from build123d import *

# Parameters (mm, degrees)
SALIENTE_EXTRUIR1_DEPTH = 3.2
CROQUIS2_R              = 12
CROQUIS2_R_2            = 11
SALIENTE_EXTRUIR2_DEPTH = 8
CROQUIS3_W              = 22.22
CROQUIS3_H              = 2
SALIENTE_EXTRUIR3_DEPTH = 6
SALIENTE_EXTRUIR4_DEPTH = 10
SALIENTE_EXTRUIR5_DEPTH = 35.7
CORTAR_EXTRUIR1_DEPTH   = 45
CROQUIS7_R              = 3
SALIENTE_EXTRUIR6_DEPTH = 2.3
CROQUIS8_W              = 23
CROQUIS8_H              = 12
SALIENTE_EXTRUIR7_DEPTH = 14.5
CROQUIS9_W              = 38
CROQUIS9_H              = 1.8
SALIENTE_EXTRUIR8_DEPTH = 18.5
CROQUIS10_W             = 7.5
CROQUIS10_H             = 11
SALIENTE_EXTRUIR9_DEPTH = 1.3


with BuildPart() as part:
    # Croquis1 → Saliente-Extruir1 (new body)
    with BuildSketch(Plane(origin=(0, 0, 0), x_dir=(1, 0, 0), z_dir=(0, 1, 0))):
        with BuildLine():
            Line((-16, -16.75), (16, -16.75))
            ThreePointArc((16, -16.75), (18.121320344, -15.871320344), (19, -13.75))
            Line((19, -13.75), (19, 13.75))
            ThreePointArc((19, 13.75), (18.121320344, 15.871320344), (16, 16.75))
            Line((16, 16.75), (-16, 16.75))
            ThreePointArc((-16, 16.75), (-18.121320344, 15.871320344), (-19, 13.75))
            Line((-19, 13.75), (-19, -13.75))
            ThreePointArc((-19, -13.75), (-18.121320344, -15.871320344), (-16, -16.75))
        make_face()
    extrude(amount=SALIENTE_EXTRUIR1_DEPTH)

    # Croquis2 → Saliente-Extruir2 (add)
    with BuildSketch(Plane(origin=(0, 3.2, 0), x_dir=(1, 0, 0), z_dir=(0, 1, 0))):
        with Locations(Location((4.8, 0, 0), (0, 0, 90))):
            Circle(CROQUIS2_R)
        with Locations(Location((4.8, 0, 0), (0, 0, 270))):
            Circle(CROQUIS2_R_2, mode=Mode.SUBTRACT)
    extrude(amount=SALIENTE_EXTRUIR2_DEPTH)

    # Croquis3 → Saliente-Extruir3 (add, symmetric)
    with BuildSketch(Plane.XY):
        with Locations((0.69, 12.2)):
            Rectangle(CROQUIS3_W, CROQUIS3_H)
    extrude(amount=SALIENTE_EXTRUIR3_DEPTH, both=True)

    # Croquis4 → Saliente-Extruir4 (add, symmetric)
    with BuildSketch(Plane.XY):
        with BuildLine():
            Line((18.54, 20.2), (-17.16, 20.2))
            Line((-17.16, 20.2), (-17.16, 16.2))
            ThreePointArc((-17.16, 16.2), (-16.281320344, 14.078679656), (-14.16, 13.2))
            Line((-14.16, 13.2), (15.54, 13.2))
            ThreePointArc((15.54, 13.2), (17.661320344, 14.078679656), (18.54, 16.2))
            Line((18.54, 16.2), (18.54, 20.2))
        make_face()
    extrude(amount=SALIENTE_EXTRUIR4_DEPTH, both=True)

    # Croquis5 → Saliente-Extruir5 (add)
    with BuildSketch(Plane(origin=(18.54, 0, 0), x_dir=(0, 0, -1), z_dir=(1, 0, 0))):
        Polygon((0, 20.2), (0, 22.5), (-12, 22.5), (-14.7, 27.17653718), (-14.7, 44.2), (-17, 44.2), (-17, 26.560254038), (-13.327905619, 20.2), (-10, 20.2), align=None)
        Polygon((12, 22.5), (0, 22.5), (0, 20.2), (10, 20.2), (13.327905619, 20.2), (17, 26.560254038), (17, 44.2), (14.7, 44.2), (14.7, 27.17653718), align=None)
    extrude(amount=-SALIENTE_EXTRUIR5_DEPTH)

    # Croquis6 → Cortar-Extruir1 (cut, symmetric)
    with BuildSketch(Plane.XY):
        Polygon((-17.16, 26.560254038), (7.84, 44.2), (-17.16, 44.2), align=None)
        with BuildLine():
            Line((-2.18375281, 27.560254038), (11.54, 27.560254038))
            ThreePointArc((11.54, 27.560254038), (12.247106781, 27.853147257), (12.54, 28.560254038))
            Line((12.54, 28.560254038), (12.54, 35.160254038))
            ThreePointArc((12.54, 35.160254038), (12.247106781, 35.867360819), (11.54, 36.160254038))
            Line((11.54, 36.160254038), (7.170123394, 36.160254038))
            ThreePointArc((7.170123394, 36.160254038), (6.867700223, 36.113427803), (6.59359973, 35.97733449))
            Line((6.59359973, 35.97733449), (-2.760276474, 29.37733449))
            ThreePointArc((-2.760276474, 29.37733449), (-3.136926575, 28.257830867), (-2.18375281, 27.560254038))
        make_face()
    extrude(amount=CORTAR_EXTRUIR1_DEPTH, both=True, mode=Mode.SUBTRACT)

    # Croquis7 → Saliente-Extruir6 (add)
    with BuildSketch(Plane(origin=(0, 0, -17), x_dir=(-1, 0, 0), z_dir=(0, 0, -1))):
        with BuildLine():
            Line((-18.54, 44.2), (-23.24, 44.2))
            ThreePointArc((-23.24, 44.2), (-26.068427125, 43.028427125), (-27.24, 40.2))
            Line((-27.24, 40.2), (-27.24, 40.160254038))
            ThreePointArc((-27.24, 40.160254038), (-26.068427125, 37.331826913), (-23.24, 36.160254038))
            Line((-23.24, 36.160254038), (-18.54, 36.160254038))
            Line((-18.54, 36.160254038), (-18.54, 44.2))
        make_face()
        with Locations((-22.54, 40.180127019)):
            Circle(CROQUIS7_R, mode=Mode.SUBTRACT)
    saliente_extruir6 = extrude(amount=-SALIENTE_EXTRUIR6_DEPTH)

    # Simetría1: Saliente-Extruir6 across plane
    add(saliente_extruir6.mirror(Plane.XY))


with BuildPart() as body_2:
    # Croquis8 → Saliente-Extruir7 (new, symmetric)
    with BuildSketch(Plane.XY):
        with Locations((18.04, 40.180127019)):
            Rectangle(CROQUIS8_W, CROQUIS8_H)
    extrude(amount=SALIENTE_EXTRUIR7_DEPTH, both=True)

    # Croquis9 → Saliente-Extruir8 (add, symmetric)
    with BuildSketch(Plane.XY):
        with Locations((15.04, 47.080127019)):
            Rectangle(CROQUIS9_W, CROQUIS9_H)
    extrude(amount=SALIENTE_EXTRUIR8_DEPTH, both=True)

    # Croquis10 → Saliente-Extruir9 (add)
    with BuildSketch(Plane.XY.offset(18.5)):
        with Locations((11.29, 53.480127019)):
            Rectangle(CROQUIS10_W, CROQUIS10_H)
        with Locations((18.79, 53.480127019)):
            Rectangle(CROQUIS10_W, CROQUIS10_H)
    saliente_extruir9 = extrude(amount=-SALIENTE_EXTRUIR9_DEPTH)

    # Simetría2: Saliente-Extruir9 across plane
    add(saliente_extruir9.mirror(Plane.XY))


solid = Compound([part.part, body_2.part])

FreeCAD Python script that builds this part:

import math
import FreeCAD as App
import Part
import Sketcher

V = App.Vector
Q = App.Units.Quantity


def add_polygon(sketch, points):
    """Adds a closed chain of lines whose ends are joined by coincident constraints."""
    first, n = sketch.GeometryCount, len(points)
    for a, b in zip(points, points[1:] + points[:1]):
        sketch.addGeometry(Part.LineSegment(App.Vector(*a, 0), App.Vector(*b, 0)), False)
    for i in range(n):
        sketch.addConstraint(Sketcher.Constraint("Coincident", first + i, 2, first + (i + 1) % n, 1))

doc = App.newDocument("Part")
body = doc.addObject("PartDesign::Body", "Body")

sketch1 = doc.addObject("Sketcher::SketchObject", "Sketch")
body.addObject(sketch1)
sketch1.AttachmentSupport = (doc.XZ_Plane, [""])
sketch1.MapMode = "FlatFace"
sketch1.addGeometry([
    Part.LineSegment(V(-16, 16.8, 0), V(16, 16.8, 0)),
    Part.ArcOfCircle(Part.Circle(V(16, 13.8, 0), V(0, 0, 1), 3), math.radians(0), math.radians(90)),
    Part.LineSegment(V(19, 13.8, 0), V(19, -13.8, 0)),
    Part.ArcOfCircle(Part.Circle(V(16, -13.8, 0), V(0, 0, 1), 3), math.radians(-90), math.radians(0)),
    Part.LineSegment(V(16, -16.8, 0), V(-16, -16.8, 0)),
    Part.ArcOfCircle(Part.Circle(V(-16, -13.8, 0), V(0, 0, 1), 3), math.radians(180), math.radians(270)),
    Part.LineSegment(V(-19, -13.8, 0), V(-19, 13.8, 0)),
    Part.ArcOfCircle(Part.Circle(V(-16, 13.8, 0), V(0, 0, 1), 3), math.radians(90), math.radians(180)),
], False)
sketch1.addConstraint([
    Sketcher.Constraint("Tangent", 0, 2, 1, 2),
    Sketcher.Constraint("Tangent", 1, 1, 2, 1),
    Sketcher.Constraint("Tangent", 2, 2, 3, 2),
    Sketcher.Constraint("Tangent", 3, 1, 4, 1),
    Sketcher.Constraint("Tangent", 4, 2, 5, 2),
    Sketcher.Constraint("Tangent", 5, 1, 6, 1),
    Sketcher.Constraint("Tangent", 6, 2, 7, 2),
    Sketcher.Constraint("Tangent", 7, 1, 0, 1),
    Sketcher.Constraint("Horizontal", 0),
    Sketcher.Constraint("Vertical", 2),
    Sketcher.Constraint("Horizontal", 4),
    Sketcher.Constraint("Vertical", 6),
    Sketcher.Constraint("Equal", 1, 3),
    Sketcher.Constraint("Equal", 3, 5),
    Sketcher.Constraint("Equal", 5, 7),
    Sketcher.Constraint("Symmetric", 1, 3, 5, 3, -1, 1),
    Sketcher.Constraint("Radius", 1, 3.0),
    Sketcher.Constraint("DistanceX", 0, 1, 0, 2, 32.0),
    Sketcher.Constraint("DistanceY", 2, 2, 2, 1, 27.5),
])
pad1 = doc.addObject("PartDesign::Pad", "Pad")
body.addObject(pad1)
pad1.Profile = sketch1
pad1.Length = 3.2
pad1.Reversed = True

sketch2 = doc.addObject("Sketcher::SketchObject", "Sketch001")
body.addObject(sketch2)
sketch2.AttachmentSupport = (doc.XZ_Plane, [""])
sketch2.MapMode = "FlatFace"
sketch2.AttachmentOffset = App.Placement(V(0, 0, -3.2), App.Rotation())
sketch2.addGeometry([
    Part.Circle(V(5, 0, 0), V(0, 0, 1), 12),
    Part.Circle(V(5, 0, 0), V(0, 0, 1), 11),
], False)
sketch2.addConstraint([
    Sketcher.Constraint("Coincident", 1, 3, 0, 3),
    Sketcher.Constraint("PointOnObject", 0, 3, -1),
    Sketcher.Constraint("Diameter", 0, 24.0),
    Sketcher.Constraint("Diameter", 1, 22.0),
    Sketcher.Constraint("DistanceX", -1, 1, 0, 3, 4.8),
])
pad2 = doc.addObject("PartDesign::Pad", "Pad001")
body.addObject(pad2)
pad2.Profile = sketch2
pad2.Length = 8
pad2.Reversed = True

sketch3 = doc.addObject("Sketcher::SketchObject", "Sketch002")
body.addObject(sketch3)
sketch3.AttachmentSupport = (doc.XY_Plane, [""])
sketch3.MapMode = "FlatFace"
add_polygon(sketch3, [(-10.4, 13.2), (-10.4, 11.2), (11.8, 11.2), (11.8, 13.2)])
sketch3.addConstraint([
    Sketcher.Constraint("Vertical", 0),
    Sketcher.Constraint("Horizontal", 1),
    Sketcher.Constraint("Vertical", 2),
    Sketcher.Constraint("Horizontal", 3),
    Sketcher.Constraint("DistanceY", 0, 2, 0, 1, 2.0),
    Sketcher.Constraint("DistanceX", 1, 1, 1, 2, 22.22),
    Sketcher.Constraint("DistanceY", -1, 1, 0, 2, 11.2),
    Sketcher.Constraint("DistanceX", -1, 1, 1, 2, 11.8),
])
pad3 = doc.addObject("PartDesign::Pad", "Pad002")
body.addObject(pad3)
pad3.Profile = sketch3
pad3.Length = 12
pad3.Midplane = True

sketch4 = doc.addObject("Sketcher::SketchObject", "Sketch003")
body.addObject(sketch4)
sketch4.AttachmentSupport = (doc.XY_Plane, [""])
sketch4.MapMode = "FlatFace"
sketch4.addGeometry([
    Part.LineSegment(V(18.5, 20.2, 0), V(-17.2, 20.2, 0)),
    Part.LineSegment(V(-17.2, 20.2, 0), V(-17.2, 16.2, 0)),
    Part.ArcOfCircle(Part.Circle(V(-14.2, 16.2, 0), V(0, 0, 1), 3), math.radians(180), math.radians(270)),
    Part.LineSegment(V(-14.2, 13.2, 0), V(15.5, 13.2, 0)),
    Part.ArcOfCircle(Part.Circle(V(15.5, 16.2, 0), V(0, 0, 1), 3), math.radians(-90), math.radians(0)),
    Part.LineSegment(V(18.5, 16.2, 0), V(18.5, 20.2, 0)),
], False)
sketch4.addConstraint([
    Sketcher.Constraint("Coincident", 0, 2, 1, 1),
    Sketcher.Constraint("Tangent", 1, 2, 2, 1),
    Sketcher.Constraint("Tangent", 2, 2, 3, 1),
    Sketcher.Constraint("Tangent", 3, 2, 4, 1),
    Sketcher.Constraint("Tangent", 4, 2, 5, 1),
    Sketcher.Constraint("Coincident", 5, 2, 0, 1),
    Sketcher.Constraint("Horizontal", 0),
    Sketcher.Constraint("Vertical", 1),
    Sketcher.Constraint("Horizontal", 3),
    Sketcher.Constraint("Vertical", 5),
    Sketcher.Constraint("Equal", 2, 4),
    Sketcher.Constraint("Radius", 2, 3.0),
    Sketcher.Constraint("DistanceY", 1, 2, 1, 1, 4.0),
    Sketcher.Constraint("DistanceX", 0, 2, 0, 1, 35.7),
    Sketcher.Constraint("DistanceY", -1, 1, 2, 3, 16.2),
    Sketcher.Constraint("DistanceX", 2, 3, -1, 1, 14.16),
])
pad4 = doc.addObject("PartDesign::Pad", "Pad003")
body.addObject(pad4)
pad4.Profile = sketch4
pad4.Length = 20
pad4.Midplane = True

sketch5 = doc.addObject("Sketcher::SketchObject", "Sketch004")
body.addObject(sketch5)
sketch5.AttachmentSupport = (doc.YZ_Plane, [""])
sketch5.MapMode = "FlatFace"
sketch5.AttachmentOffset = App.Placement(V(0, 0, 18.54), App.Rotation())
add_polygon(sketch5, [(22.5, 12), (27.2, 14.7), (44.2, 14.7), (44.2, 17), (26.6, 17), (20.2, 13.3), (20.2, -13.3), (26.6, -17), (44.2, -17), (44.2, -14.7), (27.2, -14.7), (22.5, -12)])
sketch5.addConstraint([
    Sketcher.Constraint("Horizontal", 1),
    Sketcher.Constraint("Vertical", 2),
    Sketcher.Constraint("Horizontal", 3),
    Sketcher.Constraint("Vertical", 5),
    Sketcher.Constraint("Horizontal", 7),
    Sketcher.Constraint("Vertical", 8),
    Sketcher.Constraint("Horizontal", 9),
    Sketcher.Constraint("Vertical", 11),
    Sketcher.Constraint("Symmetric", 3, 2, 6, 2, -1),
    Sketcher.Constraint("Symmetric", 1, 2, 8, 2, -1),
    Sketcher.Constraint("Parallel", 0, 4),
    Sketcher.Constraint("Parallel", 6, 10),
    Sketcher.Constraint("Vertical", 0, 2, 9, 2),
    Sketcher.Constraint("Equal", 4, 6),
    Sketcher.Constraint("DistanceY", 11, 1, 11, 2, 24.0),
    Sketcher.Constraint("Angle", 0, Q("30 deg")),
    Sketcher.Constraint("DistanceY", 2, 1, 2, 2, 2.3),
    Sketcher.Constraint("DistanceY", -1, 1, 2, 2, 17.0),
    Sketcher.Constraint("DistanceX", 4, 2, 1, 2, 24.0),
    Sketcher.Constraint("DistanceX", -1, 1, 1, 2, 44.2),
    Sketcher.Constraint("DistanceX", -1, 1, 10, 2, 22.5),
    Sketcher.Constraint("DistanceY", 5, 2, 5, 1, 26.655811),
])
pad5 = doc.addObject("PartDesign::Pad", "Pad004")
body.addObject(pad5)
pad5.Profile = sketch5
pad5.Length = 35.7
pad5.Reversed = True

sketch6 = doc.addObject("Sketcher::SketchObject", "Sketch005")
body.addObject(sketch6)
sketch6.AttachmentSupport = (doc.XY_Plane, [""])
sketch6.MapMode = "FlatFace"
add_polygon(sketch6, [(-17.2, 26.6), (7.8, 44.2), (-17.2, 44.2)])
sketch6.addGeometry(Part.LineSegment(V(-2.2, 27.6, 0), V(11.5, 27.6, 0)), False)
sketch6.addGeometry(Part.ArcOfCircle(Part.Circle(V(11.5, 28.6, 0), V(0, 0, 1), 1), math.radians(-90), math.radians(0)), False)
sketch6.addGeometry(Part.LineSegment(V(12.5, 28.6, 0), V(12.5, 35.2, 0)), False)
sketch6.addGeometry(Part.ArcOfCircle(Part.Circle(V(11.5, 35.2, 0), V(0, 0, 1), 1), math.radians(0), math.radians(90)), False)
sketch6.addGeometry(Part.LineSegment(V(11.5, 36.2, 0), V(7.2, 36.2, 0)), False)
sketch6.addGeometry(Part.ArcOfCircle(Part.Circle(V(7.2, 35.2, 0), V(0, 0, 1), 1), math.radians(90), math.radians(125)), False)
sketch6.addGeometry(Part.LineSegment(V(6.6, 36, 0), V(-2.8, 29.4, 0)), False)
sketch6.addGeometry(Part.ArcOfCircle(Part.Circle(V(-2.2, 28.6, 0), V(0, 0, 1), 1), math.radians(125), math.radians(270)), False)
sketch6.addConstraint([
    Sketcher.Constraint("Tangent", 3, 2, 4, 1),
    Sketcher.Constraint("Tangent", 4, 2, 5, 1),
    Sketcher.Constraint("Tangent", 5, 2, 6, 1),
    Sketcher.Constraint("Tangent", 6, 2, 7, 1),
    Sketcher.Constraint("Tangent", 7, 2, 8, 1),
    Sketcher.Constraint("Tangent", 8, 2, 9, 1),
    Sketcher.Constraint("Tangent", 9, 2, 10, 1),
    Sketcher.Constraint("Tangent", 10, 2, 3, 1),
    Sketcher.Constraint("Horizontal", 1),
    Sketcher.Constraint("Vertical", 2),
    Sketcher.Constraint("Horizontal", 3),
    Sketcher.Constraint("Vertical", 5),
    Sketcher.Constraint("Horizontal", 7),
    Sketcher.Constraint("Equal", 4, 6),
    Sketcher.Constraint("Equal", 6, 8),
    Sketcher.Constraint("Equal", 8, 10),
    Sketcher.Constraint("Parallel", 0, 9),
    Sketcher.Constraint("Radius", 4, 1.0),
    Sketcher.Constraint("DistanceX", 1, 2, 1, 1, 25.0),
    Sketcher.Constraint("DistanceY", 5, 1, 5, 2, 6.6),
    Sketcher.Constraint("DistanceY", 2, 2, 10, 3, 2.0),
    Sketcher.Constraint("DistanceY", -1, 1, 0, 2, 44.2),
    Sketcher.Constraint("DistanceX", 0, 2, 6, 3, 3.7),
    Sketcher.Constraint("DistanceX", -1, 1, 4, 3, 11.54),
    Sketcher.Constraint("DistanceX", -1, 1, 8, 2, 6.5936),
    Sketcher.Constraint("DistanceX", 9, 2, 8, 3, 9.9304),
])
pocket1 = doc.addObject("PartDesign::Pocket", "Pocket")
body.addObject(pocket1)
pocket1.Profile = sketch6
pocket1.Length = 90
pocket1.Midplane = True

sketch7 = doc.addObject("Sketcher::SketchObject", "Sketch006")
body.addObject(sketch7)
sketch7.AttachmentSupport = (doc.XY_Plane, [""])
sketch7.MapMode = "FlatFace"
sketch7.AttachmentOffset = App.Placement(V(0, 0, -17), App.Rotation())
sketch7.addGeometry([
    Part.LineSegment(V(18.54, 44.2, 0), V(23.24, 44.2, 0)),
    Part.ArcOfCircle(Part.Circle(V(23.24, 40.2, 0), V(0, 0, 1), 4), math.radians(0), math.radians(90)),
    Part.LineSegment(V(27.24, 40.2, 0), V(27.24, 40.16, 0)),
    Part.ArcOfCircle(Part.Circle(V(23.24, 40.16, 0), V(0, 0, 1), 4), math.radians(-90), math.radians(0)),
    Part.LineSegment(V(23.24, 36.16, 0), V(18.54, 36.16, 0)),
    Part.LineSegment(V(18.54, 36.16, 0), V(18.54, 44.2, 0)),
    Part.Circle(V(22.54, 40.18, 0), V(0, 0, 1), 3),
], False)
sketch7.addConstraint([
    Sketcher.Constraint("Tangent", 0, 2, 1, 2),
    Sketcher.Constraint("Tangent", 1, 1, 2, 1),
    Sketcher.Constraint("Tangent", 2, 2, 3, 2),
    Sketcher.Constraint("Tangent", 3, 1, 4, 1),
    Sketcher.Constraint("Coincident", 4, 2, 5, 1),
    Sketcher.Constraint("Coincident", 5, 2, 0, 1),
    Sketcher.Constraint("Horizontal", 0),
    Sketcher.Constraint("Vertical", 2),
    Sketcher.Constraint("Horizontal", 4),
    Sketcher.Constraint("Vertical", 5),
    Sketcher.Constraint("Equal", 1, 3),
    Sketcher.Constraint("Diameter", 6, 6.0),
    Sketcher.Constraint("Radius", 1, 4.0),
    Sketcher.Constraint("DistanceX", 0, 1, 0, 2, 4.7),
    Sketcher.Constraint("DistanceX", 4, 2, 6, 3, 4.0),
    Sketcher.Constraint("DistanceY", -1, 1, 1, 3, 40.2),
    Sketcher.Constraint("DistanceX", -1, 1, 1, 3, 23.24),
    Sketcher.Constraint("DistanceY", 2, 2, 2, 1, 0.039746),
    Sketcher.Constraint("DistanceY", -1, 1, 6, 3, 40.180127),
])
pad6 = doc.addObject("PartDesign::Pad", "Pad005")
body.addObject(pad6)
pad6.Profile = sketch7
pad6.Length = 2.3
doc.recompute()

mirrored = doc.addObject("PartDesign::Mirrored", "Mirrored")
body.addObject(mirrored)
mirrored.Originals = [pad6]
mirrored.MirrorPlane = (doc.XY_Plane, [""])
body.Tip = mirrored
body2 = doc.addObject("PartDesign::Body", "Body001")

sketch8 = doc.addObject("Sketcher::SketchObject", "Sketch007")
body2.addObject(sketch8)
sketch8.AttachmentSupport = (doc.getObject("XY_Plane001"), [""])
sketch8.MapMode = "FlatFace"
add_polygon(sketch8, [(7, 46), (7, 34), (30, 34), (30, 46)])
sketch8.addConstraint([
    Sketcher.Constraint("Vertical", 0),
    Sketcher.Constraint("Horizontal", 1),
    Sketcher.Constraint("Vertical", 2),
    Sketcher.Constraint("Horizontal", 3),
    Sketcher.Constraint("DistanceX", 1, 1, 1, 2, 23.0),
    Sketcher.Constraint("DistanceY", 0, 2, 0, 1, 12.0),
    Sketcher.Constraint("DistanceX", -1, 1, 0, 2, 6.54),
    Sketcher.Constraint("DistanceY", -1, 1, 0, 2, 34.180127),
])
pad7 = doc.addObject("PartDesign::Pad", "Pad006")
body2.addObject(pad7)
pad7.Profile = sketch8
pad7.Length = 29
pad7.Midplane = True

sketch9 = doc.addObject("Sketcher::SketchObject", "Sketch008")
body2.addObject(sketch9)
sketch9.AttachmentSupport = (doc.getObject("XY_Plane001"), [""])
sketch9.MapMode = "FlatFace"
add_polygon(sketch9, [(-4, 48), (-4, 46.2), (34, 46.2), (34, 48)])
sketch9.addConstraint([
    Sketcher.Constraint("Vertical", 0),
    Sketcher.Constraint("Horizontal", 1),
    Sketcher.Constraint("Vertical", 2),
    Sketcher.Constraint("Horizontal", 3),
    Sketcher.Constraint("DistanceX", 1, 1, 1, 2, 38.0),
    Sketcher.Constraint("DistanceY", 0, 2, 0, 1, 1.8),
    Sketcher.Constraint("DistanceX", 0, 2, -1, 1, 3.96),
    Sketcher.Constraint("DistanceY", -1, 1, 0, 2, 46.180127),
])
pad8 = doc.addObject("PartDesign::Pad", "Pad007")
body2.addObject(pad8)
pad8.Profile = sketch9
pad8.Length = 37
pad8.Midplane = True

sketch10 = doc.addObject("Sketcher::SketchObject", "Sketch009")
body2.addObject(sketch10)
sketch10.AttachmentSupport = (doc.getObject("XY_Plane001"), [""])
sketch10.MapMode = "FlatFace"
sketch10.AttachmentOffset = App.Placement(V(0, 0, 18.5), App.Rotation())
add_polygon(sketch10, [(8, 59), (8, 48), (23, 48), (23, 59)])
sketch10.addConstraint([
    Sketcher.Constraint("Vertical", 0),
    Sketcher.Constraint("Horizontal", 1),
    Sketcher.Constraint("Vertical", 2),
    Sketcher.Constraint("Horizontal", 3),
    Sketcher.Constraint("DistanceX", 1, 1, 1, 2, 15.0),
    Sketcher.Constraint("DistanceY", 0, 2, 0, 1, 11.0),
    Sketcher.Constraint("DistanceX", -1, 1, 0, 2, 7.54),
    Sketcher.Constraint("DistanceY", -1, 1, 0, 2, 47.980127),
])
pad9 = doc.addObject("PartDesign::Pad", "Pad008")
body2.addObject(pad9)
pad9.Profile = sketch10
pad9.Length = 1.3
pad9.Reversed = True
doc.recompute()

mirrored2 = doc.addObject("PartDesign::Mirrored", "Mirrored001")
body2.addObject(mirrored2)
mirrored2.Originals = [pad9]
mirrored2.MirrorPlane = (doc.getObject("XY_Plane001"), [""])
body2.Tip = mirrored2

doc.recompute()
